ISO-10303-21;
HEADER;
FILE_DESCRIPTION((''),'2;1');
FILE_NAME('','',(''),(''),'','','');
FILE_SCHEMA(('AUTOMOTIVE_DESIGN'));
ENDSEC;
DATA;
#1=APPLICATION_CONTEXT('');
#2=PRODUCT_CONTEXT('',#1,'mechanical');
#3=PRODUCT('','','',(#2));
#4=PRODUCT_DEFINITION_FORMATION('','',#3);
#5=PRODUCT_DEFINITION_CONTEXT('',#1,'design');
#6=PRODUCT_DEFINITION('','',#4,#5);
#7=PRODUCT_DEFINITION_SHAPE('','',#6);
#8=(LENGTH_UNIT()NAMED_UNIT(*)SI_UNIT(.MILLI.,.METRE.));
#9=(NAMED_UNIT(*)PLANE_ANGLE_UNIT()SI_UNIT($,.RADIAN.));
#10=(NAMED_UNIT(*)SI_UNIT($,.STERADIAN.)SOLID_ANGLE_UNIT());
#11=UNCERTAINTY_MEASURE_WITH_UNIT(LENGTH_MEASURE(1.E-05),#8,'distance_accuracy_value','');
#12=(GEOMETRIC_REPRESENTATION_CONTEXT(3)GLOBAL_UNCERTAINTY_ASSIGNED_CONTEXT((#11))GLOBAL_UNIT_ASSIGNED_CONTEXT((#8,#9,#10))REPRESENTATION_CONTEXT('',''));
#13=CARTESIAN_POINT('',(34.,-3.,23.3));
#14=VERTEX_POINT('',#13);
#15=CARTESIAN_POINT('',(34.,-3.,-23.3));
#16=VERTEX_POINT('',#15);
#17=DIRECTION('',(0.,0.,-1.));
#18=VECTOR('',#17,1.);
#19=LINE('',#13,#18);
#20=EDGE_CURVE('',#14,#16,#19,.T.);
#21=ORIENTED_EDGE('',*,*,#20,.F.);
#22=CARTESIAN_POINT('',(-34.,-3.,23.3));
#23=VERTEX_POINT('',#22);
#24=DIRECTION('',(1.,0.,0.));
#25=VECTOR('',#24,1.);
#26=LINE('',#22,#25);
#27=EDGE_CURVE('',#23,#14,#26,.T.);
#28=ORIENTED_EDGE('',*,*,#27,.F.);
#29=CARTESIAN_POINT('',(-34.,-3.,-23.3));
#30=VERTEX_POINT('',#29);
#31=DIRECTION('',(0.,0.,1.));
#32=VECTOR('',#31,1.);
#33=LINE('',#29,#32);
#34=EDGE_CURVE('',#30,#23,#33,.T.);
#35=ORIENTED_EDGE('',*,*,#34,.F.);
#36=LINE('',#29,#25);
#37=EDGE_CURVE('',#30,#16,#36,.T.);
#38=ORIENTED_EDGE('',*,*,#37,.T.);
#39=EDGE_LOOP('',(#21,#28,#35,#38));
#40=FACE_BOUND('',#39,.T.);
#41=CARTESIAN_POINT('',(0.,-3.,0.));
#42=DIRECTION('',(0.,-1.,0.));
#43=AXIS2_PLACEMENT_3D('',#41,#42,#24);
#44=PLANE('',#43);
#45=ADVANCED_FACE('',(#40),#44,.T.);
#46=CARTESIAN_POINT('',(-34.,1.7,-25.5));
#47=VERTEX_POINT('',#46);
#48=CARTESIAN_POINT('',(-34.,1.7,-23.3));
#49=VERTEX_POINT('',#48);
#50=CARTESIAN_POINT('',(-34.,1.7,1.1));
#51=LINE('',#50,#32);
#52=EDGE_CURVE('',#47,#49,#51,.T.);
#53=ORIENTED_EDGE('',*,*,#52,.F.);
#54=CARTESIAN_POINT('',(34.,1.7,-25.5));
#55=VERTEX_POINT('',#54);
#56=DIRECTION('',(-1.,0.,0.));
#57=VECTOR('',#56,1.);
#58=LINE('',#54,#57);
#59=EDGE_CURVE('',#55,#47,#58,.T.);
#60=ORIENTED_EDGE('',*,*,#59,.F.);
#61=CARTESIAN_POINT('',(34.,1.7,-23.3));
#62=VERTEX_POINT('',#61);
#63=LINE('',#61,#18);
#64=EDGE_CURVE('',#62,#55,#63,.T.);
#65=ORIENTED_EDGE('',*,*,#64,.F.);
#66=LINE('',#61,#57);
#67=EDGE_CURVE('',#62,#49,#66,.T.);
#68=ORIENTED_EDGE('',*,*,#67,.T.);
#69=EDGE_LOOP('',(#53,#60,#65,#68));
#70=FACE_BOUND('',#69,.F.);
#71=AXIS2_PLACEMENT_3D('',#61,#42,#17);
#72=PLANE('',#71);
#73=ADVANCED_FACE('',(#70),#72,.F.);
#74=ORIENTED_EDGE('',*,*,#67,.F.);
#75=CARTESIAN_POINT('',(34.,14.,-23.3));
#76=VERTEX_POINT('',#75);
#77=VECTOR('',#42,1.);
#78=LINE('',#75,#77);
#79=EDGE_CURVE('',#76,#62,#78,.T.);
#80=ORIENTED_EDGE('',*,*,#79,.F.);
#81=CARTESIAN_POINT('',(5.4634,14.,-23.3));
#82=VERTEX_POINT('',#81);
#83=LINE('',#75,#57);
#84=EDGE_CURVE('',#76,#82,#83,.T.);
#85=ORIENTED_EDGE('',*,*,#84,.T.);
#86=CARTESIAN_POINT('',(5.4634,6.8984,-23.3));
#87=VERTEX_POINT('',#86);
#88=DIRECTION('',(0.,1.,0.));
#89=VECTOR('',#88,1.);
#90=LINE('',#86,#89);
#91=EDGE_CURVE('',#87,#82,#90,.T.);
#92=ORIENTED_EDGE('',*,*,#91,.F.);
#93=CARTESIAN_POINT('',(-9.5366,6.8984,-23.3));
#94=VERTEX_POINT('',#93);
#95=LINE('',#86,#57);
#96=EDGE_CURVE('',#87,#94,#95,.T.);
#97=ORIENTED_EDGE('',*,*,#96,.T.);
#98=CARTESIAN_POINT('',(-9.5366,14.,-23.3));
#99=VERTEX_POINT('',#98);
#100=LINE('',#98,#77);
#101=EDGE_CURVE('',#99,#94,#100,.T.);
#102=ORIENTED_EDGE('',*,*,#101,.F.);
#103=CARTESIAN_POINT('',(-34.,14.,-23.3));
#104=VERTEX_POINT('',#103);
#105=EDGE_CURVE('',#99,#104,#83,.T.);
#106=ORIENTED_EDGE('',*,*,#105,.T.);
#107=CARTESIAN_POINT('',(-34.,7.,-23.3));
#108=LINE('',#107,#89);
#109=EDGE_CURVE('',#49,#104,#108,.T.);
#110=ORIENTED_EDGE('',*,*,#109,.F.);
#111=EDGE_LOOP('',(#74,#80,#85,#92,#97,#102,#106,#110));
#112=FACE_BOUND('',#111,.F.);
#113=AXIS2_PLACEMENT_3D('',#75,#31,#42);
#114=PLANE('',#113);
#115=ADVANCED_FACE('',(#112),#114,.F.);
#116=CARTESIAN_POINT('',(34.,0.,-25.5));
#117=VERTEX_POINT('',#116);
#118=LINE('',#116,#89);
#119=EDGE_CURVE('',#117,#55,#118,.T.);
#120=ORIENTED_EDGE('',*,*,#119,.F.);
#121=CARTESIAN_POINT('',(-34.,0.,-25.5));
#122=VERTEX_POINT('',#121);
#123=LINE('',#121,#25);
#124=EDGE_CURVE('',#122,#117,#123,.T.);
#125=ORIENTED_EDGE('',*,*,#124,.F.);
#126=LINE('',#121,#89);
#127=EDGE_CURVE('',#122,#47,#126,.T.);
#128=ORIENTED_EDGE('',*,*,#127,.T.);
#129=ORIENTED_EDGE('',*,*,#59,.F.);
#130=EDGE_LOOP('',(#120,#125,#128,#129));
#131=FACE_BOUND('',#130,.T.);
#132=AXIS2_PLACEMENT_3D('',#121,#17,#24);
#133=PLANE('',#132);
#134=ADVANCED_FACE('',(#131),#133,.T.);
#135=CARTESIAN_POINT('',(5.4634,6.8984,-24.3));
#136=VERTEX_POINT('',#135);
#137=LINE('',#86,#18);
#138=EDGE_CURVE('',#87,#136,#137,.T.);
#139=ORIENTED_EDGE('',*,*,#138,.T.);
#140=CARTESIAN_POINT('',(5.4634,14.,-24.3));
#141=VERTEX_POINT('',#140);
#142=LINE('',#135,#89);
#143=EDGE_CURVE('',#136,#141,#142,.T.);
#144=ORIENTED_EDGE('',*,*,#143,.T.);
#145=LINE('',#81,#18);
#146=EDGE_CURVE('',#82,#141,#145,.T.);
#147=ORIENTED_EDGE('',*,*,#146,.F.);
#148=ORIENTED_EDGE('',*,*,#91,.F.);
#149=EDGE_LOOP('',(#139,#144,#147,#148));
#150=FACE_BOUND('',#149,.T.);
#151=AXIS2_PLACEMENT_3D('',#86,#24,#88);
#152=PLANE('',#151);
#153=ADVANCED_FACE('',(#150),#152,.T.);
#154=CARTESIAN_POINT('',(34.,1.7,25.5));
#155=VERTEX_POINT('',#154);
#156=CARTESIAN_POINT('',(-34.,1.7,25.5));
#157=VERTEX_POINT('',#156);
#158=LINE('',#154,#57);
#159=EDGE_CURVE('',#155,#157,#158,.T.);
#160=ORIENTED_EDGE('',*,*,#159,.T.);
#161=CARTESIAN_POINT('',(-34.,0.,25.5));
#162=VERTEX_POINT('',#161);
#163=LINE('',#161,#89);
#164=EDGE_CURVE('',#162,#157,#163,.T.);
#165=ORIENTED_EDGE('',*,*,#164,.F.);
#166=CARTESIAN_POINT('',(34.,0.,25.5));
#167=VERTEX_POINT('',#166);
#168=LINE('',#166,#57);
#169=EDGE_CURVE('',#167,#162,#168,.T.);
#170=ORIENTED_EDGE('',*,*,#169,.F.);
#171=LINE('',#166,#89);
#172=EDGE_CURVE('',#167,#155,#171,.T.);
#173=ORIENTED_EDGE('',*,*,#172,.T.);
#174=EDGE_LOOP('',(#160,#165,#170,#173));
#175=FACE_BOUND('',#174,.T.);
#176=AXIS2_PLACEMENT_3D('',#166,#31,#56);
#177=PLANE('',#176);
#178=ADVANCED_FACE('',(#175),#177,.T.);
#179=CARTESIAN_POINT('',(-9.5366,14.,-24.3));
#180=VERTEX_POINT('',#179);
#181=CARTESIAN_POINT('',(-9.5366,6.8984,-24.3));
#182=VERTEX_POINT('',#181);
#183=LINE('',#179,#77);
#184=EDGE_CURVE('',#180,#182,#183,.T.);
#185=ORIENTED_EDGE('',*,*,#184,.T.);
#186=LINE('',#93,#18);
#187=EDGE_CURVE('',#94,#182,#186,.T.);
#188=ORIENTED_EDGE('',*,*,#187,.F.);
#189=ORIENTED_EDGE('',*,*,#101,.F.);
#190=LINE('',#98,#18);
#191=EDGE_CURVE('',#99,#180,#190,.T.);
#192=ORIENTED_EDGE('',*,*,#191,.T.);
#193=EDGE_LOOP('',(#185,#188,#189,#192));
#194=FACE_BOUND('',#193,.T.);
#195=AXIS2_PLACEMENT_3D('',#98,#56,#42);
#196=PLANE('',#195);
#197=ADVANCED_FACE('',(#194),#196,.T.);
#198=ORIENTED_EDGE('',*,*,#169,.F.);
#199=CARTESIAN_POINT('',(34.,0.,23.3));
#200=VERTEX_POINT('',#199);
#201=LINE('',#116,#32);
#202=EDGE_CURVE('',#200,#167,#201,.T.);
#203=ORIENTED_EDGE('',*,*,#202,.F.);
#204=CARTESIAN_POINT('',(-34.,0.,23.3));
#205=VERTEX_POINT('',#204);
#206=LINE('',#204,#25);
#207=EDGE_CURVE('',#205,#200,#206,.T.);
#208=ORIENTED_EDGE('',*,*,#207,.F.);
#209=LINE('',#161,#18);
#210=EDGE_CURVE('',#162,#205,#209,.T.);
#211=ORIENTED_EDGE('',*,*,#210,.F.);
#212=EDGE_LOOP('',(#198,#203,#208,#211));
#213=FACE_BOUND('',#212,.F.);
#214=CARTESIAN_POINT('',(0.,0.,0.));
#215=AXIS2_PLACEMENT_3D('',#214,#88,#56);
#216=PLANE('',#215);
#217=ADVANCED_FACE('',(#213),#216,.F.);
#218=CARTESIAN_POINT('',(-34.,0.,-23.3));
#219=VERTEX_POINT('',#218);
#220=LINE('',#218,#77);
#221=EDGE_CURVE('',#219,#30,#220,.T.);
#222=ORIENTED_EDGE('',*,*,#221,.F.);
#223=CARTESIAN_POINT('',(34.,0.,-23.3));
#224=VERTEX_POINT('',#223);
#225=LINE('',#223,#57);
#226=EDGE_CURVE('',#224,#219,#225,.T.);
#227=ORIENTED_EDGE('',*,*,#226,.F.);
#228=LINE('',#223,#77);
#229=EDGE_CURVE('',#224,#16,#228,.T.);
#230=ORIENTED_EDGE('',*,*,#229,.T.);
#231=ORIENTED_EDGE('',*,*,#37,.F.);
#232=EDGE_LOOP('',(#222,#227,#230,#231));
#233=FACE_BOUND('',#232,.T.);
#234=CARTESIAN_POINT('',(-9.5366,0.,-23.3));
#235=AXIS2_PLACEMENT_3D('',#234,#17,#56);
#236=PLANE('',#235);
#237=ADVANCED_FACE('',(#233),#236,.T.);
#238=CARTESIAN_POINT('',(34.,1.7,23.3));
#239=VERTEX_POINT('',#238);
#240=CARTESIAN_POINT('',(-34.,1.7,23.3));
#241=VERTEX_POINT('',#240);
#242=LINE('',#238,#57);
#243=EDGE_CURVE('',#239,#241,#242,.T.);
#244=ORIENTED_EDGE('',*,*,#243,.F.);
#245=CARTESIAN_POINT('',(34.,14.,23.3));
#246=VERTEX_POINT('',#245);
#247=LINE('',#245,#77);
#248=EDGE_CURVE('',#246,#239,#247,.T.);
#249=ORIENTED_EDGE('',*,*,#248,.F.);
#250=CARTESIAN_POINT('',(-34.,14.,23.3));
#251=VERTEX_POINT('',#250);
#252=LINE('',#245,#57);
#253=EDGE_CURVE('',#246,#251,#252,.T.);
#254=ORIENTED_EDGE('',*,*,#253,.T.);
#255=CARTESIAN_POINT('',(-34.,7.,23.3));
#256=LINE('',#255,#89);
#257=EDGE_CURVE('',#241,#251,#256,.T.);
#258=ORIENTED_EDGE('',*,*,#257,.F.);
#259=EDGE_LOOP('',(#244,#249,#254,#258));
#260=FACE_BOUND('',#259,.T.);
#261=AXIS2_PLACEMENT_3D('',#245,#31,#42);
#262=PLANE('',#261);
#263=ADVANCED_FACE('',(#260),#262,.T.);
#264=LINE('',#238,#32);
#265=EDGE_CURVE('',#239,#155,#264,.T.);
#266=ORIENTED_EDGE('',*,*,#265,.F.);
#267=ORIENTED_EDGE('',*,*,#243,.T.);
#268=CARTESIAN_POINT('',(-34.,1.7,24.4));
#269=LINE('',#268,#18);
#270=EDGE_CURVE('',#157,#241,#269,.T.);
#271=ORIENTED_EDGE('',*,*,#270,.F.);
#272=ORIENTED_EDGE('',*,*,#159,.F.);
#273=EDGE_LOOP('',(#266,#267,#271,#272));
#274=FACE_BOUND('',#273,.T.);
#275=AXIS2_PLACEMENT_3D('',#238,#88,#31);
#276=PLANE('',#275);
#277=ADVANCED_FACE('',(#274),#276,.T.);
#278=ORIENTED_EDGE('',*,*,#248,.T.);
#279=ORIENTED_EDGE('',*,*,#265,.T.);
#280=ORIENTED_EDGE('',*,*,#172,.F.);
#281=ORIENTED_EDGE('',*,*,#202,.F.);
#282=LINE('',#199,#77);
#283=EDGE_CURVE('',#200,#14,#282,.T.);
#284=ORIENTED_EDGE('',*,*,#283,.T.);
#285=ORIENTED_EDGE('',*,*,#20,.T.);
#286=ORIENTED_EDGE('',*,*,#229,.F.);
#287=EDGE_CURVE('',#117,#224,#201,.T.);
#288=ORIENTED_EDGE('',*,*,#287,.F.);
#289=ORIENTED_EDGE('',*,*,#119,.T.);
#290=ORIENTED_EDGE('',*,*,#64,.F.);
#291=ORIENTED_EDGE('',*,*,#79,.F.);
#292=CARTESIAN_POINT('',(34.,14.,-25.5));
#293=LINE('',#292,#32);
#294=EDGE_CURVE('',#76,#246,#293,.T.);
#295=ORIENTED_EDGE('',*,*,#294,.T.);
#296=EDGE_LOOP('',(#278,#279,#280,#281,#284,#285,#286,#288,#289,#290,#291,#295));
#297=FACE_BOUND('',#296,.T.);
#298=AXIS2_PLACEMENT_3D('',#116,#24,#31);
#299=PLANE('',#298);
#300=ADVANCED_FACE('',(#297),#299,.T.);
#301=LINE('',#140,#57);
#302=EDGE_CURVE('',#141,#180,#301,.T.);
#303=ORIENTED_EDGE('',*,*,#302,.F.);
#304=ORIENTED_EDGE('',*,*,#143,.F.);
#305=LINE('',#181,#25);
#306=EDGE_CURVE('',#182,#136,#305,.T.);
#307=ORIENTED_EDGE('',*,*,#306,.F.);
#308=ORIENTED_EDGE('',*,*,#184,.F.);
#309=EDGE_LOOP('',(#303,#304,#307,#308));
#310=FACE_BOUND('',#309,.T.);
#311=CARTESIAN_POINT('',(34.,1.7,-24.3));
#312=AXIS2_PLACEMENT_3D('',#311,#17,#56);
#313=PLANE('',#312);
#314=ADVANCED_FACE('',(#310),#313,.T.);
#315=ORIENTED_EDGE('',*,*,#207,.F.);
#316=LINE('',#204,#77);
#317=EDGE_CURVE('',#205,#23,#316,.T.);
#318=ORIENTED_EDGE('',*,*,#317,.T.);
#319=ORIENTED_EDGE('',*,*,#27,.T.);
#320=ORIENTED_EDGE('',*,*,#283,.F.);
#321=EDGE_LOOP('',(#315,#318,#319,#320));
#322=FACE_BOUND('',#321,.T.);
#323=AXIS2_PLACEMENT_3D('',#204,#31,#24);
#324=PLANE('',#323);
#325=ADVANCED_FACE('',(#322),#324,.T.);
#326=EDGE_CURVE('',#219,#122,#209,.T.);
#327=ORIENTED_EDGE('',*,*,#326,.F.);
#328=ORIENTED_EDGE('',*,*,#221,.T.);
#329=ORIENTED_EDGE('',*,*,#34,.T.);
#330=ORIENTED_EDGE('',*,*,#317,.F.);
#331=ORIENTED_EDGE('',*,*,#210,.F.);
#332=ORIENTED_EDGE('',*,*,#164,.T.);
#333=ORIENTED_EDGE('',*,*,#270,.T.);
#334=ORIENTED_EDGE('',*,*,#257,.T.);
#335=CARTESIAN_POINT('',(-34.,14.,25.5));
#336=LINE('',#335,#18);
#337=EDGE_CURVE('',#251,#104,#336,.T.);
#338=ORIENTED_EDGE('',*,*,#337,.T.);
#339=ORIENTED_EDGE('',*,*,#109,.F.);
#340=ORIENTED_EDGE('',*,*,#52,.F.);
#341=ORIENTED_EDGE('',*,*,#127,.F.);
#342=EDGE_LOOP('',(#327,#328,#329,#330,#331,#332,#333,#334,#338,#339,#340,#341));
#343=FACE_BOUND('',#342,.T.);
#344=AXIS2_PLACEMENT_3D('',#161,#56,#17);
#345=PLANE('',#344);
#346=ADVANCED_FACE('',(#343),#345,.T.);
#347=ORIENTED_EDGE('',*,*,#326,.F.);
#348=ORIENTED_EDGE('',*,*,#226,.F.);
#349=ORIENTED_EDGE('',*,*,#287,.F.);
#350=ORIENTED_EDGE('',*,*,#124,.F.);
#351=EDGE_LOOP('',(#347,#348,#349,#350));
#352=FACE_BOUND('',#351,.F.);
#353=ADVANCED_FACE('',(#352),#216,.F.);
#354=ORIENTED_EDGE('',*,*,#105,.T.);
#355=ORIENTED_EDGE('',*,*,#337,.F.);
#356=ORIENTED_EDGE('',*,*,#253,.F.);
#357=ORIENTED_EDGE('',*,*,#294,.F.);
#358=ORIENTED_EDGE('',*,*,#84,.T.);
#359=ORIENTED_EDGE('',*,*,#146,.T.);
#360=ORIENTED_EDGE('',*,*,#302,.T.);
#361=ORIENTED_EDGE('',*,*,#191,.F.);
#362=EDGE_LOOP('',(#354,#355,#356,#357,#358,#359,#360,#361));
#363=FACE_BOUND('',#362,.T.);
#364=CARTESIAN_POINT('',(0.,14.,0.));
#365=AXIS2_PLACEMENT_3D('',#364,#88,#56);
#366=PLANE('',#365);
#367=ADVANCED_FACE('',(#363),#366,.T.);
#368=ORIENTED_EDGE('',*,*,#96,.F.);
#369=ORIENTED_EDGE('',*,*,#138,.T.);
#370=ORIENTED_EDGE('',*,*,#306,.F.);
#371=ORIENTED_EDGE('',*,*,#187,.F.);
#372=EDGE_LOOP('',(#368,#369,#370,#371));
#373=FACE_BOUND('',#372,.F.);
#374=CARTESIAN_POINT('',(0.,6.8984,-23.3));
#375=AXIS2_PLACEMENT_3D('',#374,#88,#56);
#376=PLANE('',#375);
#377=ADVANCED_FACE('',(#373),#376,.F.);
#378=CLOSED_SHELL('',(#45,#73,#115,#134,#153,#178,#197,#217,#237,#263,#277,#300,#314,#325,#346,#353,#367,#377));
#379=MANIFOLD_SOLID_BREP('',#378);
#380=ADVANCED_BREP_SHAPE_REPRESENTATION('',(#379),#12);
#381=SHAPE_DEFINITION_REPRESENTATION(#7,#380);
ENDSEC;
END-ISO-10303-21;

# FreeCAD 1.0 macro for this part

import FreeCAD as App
import Part
import Sketcher
Q = App.Units.Quantity

doc = App.newDocument("Part")
body = doc.addObject("PartDesign::Body", "Body")

# Sketch on XZ plane
sketch1 = body.newObject("Sketcher::SketchObject", "Sketch")
sketch1.AttachmentSupport = (doc.getObject("XZ_Plane"), [""])
sketch1.MapMode = "FlatFace"
sketch1.addGeometry(Part.LineSegment(App.Vector(-34, 25.5, 0), App.Vector(34, 25.5, 0)), False)
sketch1.addGeometry(Part.LineSegment(App.Vector(34, 25.5, 0), App.Vector(34, -25.5, 0)), False)
sketch1.addGeometry(Part.LineSegment(App.Vector(34, -25.5, 0), App.Vector(-34, -25.5, 0)), False)
sketch1.addGeometry(Part.LineSegment(App.Vector(-34, -25.5, 0), App.Vector(-34, 25.5, 0)), False)
sketch1.addConstraint(Sketcher.Constraint("Coincident", 0, 2, 1, 1))
sketch1.addConstraint(Sketcher.Constraint("Coincident", 1, 2, 2, 1))
sketch1.addConstraint(Sketcher.Constraint("Coincident", 2, 2, 3, 1))
sketch1.addConstraint(Sketcher.Constraint("Coincident", 3, 2, 0, 1))
sketch1.addConstraint(Sketcher.Constraint("Horizontal", 0))
sketch1.addConstraint(Sketcher.Constraint("Vertical", 1))
sketch1.addConstraint(Sketcher.Constraint("Horizontal", 2))
sketch1.addConstraint(Sketcher.Constraint("Vertical", 3))
sketch1.addConstraint(Sketcher.Constraint("Symmetric", 0, 2, 2, 2, -1, 1))
sketch1.addConstraint(Sketcher.Constraint("DistanceX", 0, 1, 0, 2, Q("68 mm")))
sketch1.addConstraint(Sketcher.Constraint("DistanceY", 1, 2, 1, 1, Q("51 mm")))
pad1 = body.newObject("PartDesign::Pad", "Pad")
pad1.Profile = sketch1
pad1.Length = 14
pad1.Reversed = True

# Sketch on YZ plane
sketch2 = body.newObject("Sketcher::SketchObject", "Sketch001")
sketch2.AttachmentSupport = (doc.getObject("YZ_Plane"), [""])
sketch2.MapMode = "FlatFace"
sketch2.AttachmentOffset = App.Placement(App.Vector(0, 0, 34), App.Rotation())
sketch2.addGeometry(Part.LineSegment(App.Vector(1.7, -23.3, 0), App.Vector(1.7, -25.5, 0)), False)
sketch2.addGeometry(Part.LineSegment(App.Vector(1.7, -25.5, 0), App.Vector(14, -25.5, 0)), False)
sketch2.addGeometry(Part.LineSegment(App.Vector(14, -25.5, 0), App.Vector(14, -23.3, 0)), False)
sketch2.addGeometry(Part.LineSegment(App.Vector(14, -23.3, 0), App.Vector(1.7, -23.3, 0)), False)
sketch2.addGeometry(Part.LineSegment(App.Vector(1.7, 25.5, 0), App.Vector(1.7, 23.3, 0)), False)
sketch2.addGeometry(Part.LineSegment(App.Vector(1.7, 23.3, 0), App.Vector(14, 23.3, 0)), False)
sketch2.addGeometry(Part.LineSegment(App.Vector(14, 23.3, 0), App.Vector(14, 25.5, 0)), False)
sketch2.addGeometry(Part.LineSegment(App.Vector(14, 25.5, 0), App.Vector(1.7, 25.5, 0)), False)
sketch2.addConstraint(Sketcher.Constraint("Coincident", 0, 2, 1, 1))
sketch2.addConstraint(Sketcher.Constraint("Coincident", 1, 2, 2, 1))
sketch2.addConstraint(Sketcher.Constraint("Coincident", 2, 2, 3, 1))
sketch2.addConstraint(Sketcher.Constraint("Coincident", 3, 2, 0, 1))
sketch2.addConstraint(Sketcher.Constraint("Coincident", 4, 2, 5, 1))
sketch2.addConstraint(Sketcher.Constraint("Coincident", 5, 2, 6, 1))
sketch2.addConstraint(Sketcher.Constraint("Coincident", 6, 2, 7, 1))
sketch2.addConstraint(Sketcher.Constraint("Coincident", 7, 2, 4, 1))
sketch2.addConstraint(Sketcher.Constraint("Vertical", 0))
sketch2.addConstraint(Sketcher.Constraint("Horizontal", 1))
sketch2.addConstraint(Sketcher.Constraint("Vertical", 2))
sketch2.addConstraint(Sketcher.Constraint("Horizontal", 3))
sketch2.addConstraint(Sketcher.Constraint("Vertical", 4))
sketch2.addConstraint(Sketcher.Constraint("Horizontal", 5))
sketch2.addConstraint(Sketcher.Constraint("Vertical", 6))
sketch2.addConstraint(Sketcher.Constraint("Horizontal", 7))
sketch2.addConstraint(Sketcher.Constraint("Symmetric", 3, 2, 4, 2, -1))
sketch2.addConstraint(Sketcher.Constraint("Symmetric", 1, 2, 6, 2, -1))
sketch2.addConstraint(Sketcher.Constraint("DistanceX", 1, 1, 1, 2, Q("12.3 mm")))
sketch2.addConstraint(Sketcher.Constraint("DistanceY", 0, 2, 0, 1, Q("2.2 mm")))
sketch2.addConstraint(Sketcher.Constraint("DistanceY", 1, 2, 6, 2, Q("51 mm")))
sketch2.addConstraint(Sketcher.Constraint("DistanceX", -1, 1, 0, 2, Q("1.7 mm")))
pocket1 = body.newObject("PartDesign::Pocket", "Pocket")
pocket1.Profile = sketch2
pocket1.Type = "ThroughAll"

# Sketch on XY plane
sketch3 = body.newObject("Sketcher::SketchObject", "Sketch002")
sketch3.AttachmentSupport = (doc.getObject("XY_Plane"), [""])
sketch3.MapMode = "FlatFace"
sketch3.AttachmentOffset = App.Placement(App.Vector(0, 0, -23.3), App.Rotation())
sketch3.addGeometry(Part.LineSegment(App.Vector(-9.5366, 6.8984, 0), App.Vector(-9.5366, 14, 0)), False)
sketch3.addGeometry(Part.LineSegment(App.Vector(-9.5366, 14, 0), App.Vector(5.4634, 14, 0)), False)
sketch3.addGeometry(Part.LineSegment(App.Vector(5.4634, 14, 0), App.Vector(5.4634, 6.8984, 0)), False)
sketch3.addGeometry(Part.LineSegment(App.Vector(5.4634, 6.8984, 0), App.Vector(-9.5366, 6.8984, 0)), False)
sketch3.addConstraint(Sketcher.Constraint("Coincident", 0, 2, 1, 1))
sketch3.addConstraint(Sketcher.Constraint("Coincident", 1, 2, 2, 1))
sketch3.addConstraint(Sketcher.Constraint("Coincident", 2, 2, 3, 1))
sketch3.addConstraint(Sketcher.Constraint("Coincident", 3, 2, 0, 1))
sketch3.addConstraint(Sketcher.Constraint("Vertical", 0))
sketch3.addConstraint(Sketcher.Constraint("Horizontal", 1))
sketch3.addConstraint(Sketcher.Constraint("Vertical", 2))
sketch3.addConstraint(Sketcher.Constraint("Horizontal", 3))
sketch3.addConstraint(Sketcher.Constraint("DistanceX", 1, 1, 1, 2, Q("15 mm")))
sketch3.addConstraint(Sketcher.Constraint("DistanceY", -1, 1, 0, 2, Q("14 mm")))
sketch3.addConstraint(Sketcher.Constraint("DistanceY", 0, 1, 0, 2, Q("7.1016 mm")))
sketch3.addConstraint(Sketcher.Constraint("DistanceX", 0, 2, -1, 1, Q("9.5366 mm")))
pad2 = body.newObject("PartDesign::Pad", "Pad001")
pad2.Profile = sketch3
pad2.Length = 1
pad2.Reversed = True

# Sketch on XZ plane
sketch4 = body.newObject("Sketcher::SketchObject", "Sketch003")
sketch4.AttachmentSupport = (doc.getObject("XZ_Plane"), [""])
sketch4.MapMode = "FlatFace"
sketch4.addGeometry(Part.LineSegment(App.Vector(34, 23.3, 0), App.Vector(-34, 23.3, 0)), False)
sketch4.addGeometry(Part.LineSegment(App.Vector(-34, 23.3, 0), App.Vector(-34, -23.3, 0)), False)
sketch4.addGeometry(Part.LineSegment(App.Vector(-34, -23.3, 0), App.Vector(34, -23.3, 0)), False)
sketch4.addGeometry(Part.LineSegment(App.Vector(34, -23.3, 0), App.Vector(34, 23.3, 0)), False)
sketch4.addConstraint(Sketcher.Constraint("Coincident", 0, 2, 1, 1))
sketch4.addConstraint(Sketcher.Constraint("Coincident", 1, 2, 2, 1))
sketch4.addConstraint(Sketcher.Constraint("Coincident", 2, 2, 3, 1))
sketch4.addConstraint(Sketcher.Constraint("Coincident", 3, 2, 0, 1))
sketch4.addConstraint(Sketcher.Constraint("Horizontal", 0))
sketch4.addConstraint(Sketcher.Constraint("Vertical", 1))
sketch4.addConstraint(Sketcher.Constraint("Horizontal", 2))
sketch4.addConstraint(Sketcher.Constraint("Vertical", 3))
sketch4.addConstraint(Sketcher.Constraint("Symmetric", 0, 2, 2, 2, -1, 1))
sketch4.addConstraint(Sketcher.Constraint("DistanceX", 0, 2, 0, 1, Q("68 mm")))
sketch4.addConstraint(Sketcher.Constraint("DistanceY", 1, 2, 1, 1, Q("46.6 mm")))
pad3 = body.newObject("PartDesign::Pad", "Pad002")
pad3.Profile = sketch4
pad3.Length = 3

doc.recompute()
